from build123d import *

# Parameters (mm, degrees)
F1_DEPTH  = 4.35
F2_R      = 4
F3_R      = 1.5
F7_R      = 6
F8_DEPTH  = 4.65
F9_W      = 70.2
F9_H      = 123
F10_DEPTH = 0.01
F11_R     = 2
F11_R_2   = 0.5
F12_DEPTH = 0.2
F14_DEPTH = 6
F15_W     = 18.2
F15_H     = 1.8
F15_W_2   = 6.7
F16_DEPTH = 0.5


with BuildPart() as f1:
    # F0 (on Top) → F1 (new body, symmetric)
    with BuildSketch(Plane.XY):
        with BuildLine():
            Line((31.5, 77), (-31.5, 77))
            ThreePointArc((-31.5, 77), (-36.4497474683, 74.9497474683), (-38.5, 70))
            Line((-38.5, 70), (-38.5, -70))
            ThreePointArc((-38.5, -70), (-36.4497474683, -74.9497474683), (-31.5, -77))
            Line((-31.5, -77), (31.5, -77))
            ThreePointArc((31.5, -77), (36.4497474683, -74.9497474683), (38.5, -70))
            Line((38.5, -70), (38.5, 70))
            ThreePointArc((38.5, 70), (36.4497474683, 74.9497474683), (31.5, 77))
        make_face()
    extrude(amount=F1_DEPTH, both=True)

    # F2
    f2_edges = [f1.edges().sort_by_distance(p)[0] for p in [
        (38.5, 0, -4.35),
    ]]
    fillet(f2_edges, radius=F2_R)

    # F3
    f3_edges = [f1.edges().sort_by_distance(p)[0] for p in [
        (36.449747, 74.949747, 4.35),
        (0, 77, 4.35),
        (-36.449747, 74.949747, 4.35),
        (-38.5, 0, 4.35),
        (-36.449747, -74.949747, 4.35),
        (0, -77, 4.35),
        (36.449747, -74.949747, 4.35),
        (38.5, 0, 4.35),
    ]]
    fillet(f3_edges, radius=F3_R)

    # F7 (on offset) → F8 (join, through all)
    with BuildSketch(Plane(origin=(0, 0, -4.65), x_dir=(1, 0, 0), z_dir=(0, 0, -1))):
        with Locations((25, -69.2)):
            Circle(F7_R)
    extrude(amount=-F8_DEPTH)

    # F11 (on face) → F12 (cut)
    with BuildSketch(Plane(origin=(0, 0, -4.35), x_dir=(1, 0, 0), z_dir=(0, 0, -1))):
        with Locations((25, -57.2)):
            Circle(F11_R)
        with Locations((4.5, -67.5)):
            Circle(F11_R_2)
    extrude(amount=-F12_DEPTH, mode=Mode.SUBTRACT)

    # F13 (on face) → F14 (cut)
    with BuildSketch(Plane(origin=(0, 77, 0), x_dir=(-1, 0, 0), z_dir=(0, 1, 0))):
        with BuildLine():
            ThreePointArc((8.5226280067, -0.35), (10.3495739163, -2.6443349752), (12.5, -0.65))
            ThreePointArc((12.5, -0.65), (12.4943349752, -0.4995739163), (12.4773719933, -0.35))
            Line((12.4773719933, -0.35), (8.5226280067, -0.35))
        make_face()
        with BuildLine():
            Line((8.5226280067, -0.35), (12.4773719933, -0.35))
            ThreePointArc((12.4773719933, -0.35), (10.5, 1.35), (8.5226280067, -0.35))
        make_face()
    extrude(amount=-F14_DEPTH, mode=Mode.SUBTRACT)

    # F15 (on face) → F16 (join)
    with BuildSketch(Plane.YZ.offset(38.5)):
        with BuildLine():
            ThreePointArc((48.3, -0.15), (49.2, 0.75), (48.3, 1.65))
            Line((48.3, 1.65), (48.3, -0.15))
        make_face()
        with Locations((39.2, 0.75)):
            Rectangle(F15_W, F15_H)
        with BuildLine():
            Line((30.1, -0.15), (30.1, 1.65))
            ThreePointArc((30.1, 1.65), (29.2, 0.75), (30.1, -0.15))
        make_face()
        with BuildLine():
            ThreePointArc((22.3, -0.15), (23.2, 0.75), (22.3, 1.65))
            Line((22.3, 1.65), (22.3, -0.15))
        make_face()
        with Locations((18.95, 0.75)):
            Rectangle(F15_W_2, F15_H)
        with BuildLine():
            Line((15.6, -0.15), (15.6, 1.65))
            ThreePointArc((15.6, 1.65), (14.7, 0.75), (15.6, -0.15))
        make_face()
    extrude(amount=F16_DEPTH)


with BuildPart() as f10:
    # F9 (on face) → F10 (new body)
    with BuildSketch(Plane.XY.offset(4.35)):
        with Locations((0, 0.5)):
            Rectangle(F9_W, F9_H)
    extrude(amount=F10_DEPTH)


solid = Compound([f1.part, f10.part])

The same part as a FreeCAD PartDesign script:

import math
import FreeCAD as App
import Part
import Sketcher
Q = App.Units.Quantity


def edges_at(feature, points):
    """Names of the edges that pass closest to the given points."""
    edges = feature.Shape.Edges
    near = lambda p: min(range(len(edges)), key=lambda i: edges[i].distToShape(Part.Vertex(*p))[0])
    return sorted({f"Edge{near(p) + 1}" for p in points})


def add_polygon(sketch, points):
    """Adds a closed chain of lines whose ends are joined by coincident constraints."""
    first, n = sketch.GeometryCount, len(points)
    for a, b in zip(points, points[1:] + points[:1]):
        sketch.addGeometry(Part.LineSegment(App.Vector(*a, 0), App.Vector(*b, 0)), False)
    for i in range(n):
        sketch.addConstraint(Sketcher.Constraint("Coincident", first + i, 2, first + (i + 1) % n, 1))

doc = App.newDocument("Part")
body = doc.addObject("PartDesign::Body", "Body")

sketch1 = doc.addObject("Sketcher::SketchObject", "Sketch")
body.addObject(sketch1)
sketch1.AttachmentSupport = (doc.XY_Plane, [""])
sketch1.MapMode = "FlatFace"
sketch1.addGeometry(Part.LineSegment(App.Vector(32, 77, 0), App.Vector(-32, 77, 0)), False)
sketch1.addGeometry(Part.ArcOfCircle(Part.Circle(App.Vector(-32, 70, 0), App.Vector(0, 0, 1), 7), math.radians(90), math.radians(180)), False)
sketch1.addGeometry(Part.LineSegment(App.Vector(-38, 70, 0), App.Vector(-38, -70, 0)), False)
sketch1.addGeometry(Part.ArcOfCircle(Part.Circle(App.Vector(-32, -70, 0), App.Vector(0, 0, 1), 7), math.radians(180), math.radians(270)), False)
sketch1.addGeometry(Part.LineSegment(App.Vector(-32, -77, 0), App.Vector(32, -77, 0)), False)
sketch1.addGeometry(Part.ArcOfCircle(Part.Circle(App.Vector(32, -70, 0), App.Vector(0, 0, 1), 7), math.radians(-90), math.radians(0)), False)
sketch1.addGeometry(Part.LineSegment(App.Vector(38, -70, 0), App.Vector(38, 70, 0)), False)
sketch1.addGeometry(Part.ArcOfCircle(Part.Circle(App.Vector(32, 70, 0), App.Vector(0, 0, 1), 7), math.radians(0), math.radians(90)), False)
sketch1.addConstraint(Sketcher.Constraint("Tangent", 0, 2, 1, 1))
sketch1.addConstraint(Sketcher.Constraint("Tangent", 1, 2, 2, 1))
sketch1.addConstraint(Sketcher.Constraint("Tangent", 2, 2, 3, 1))
sketch1.addConstraint(Sketcher.Constraint("Tangent", 3, 2, 4, 1))
sketch1.addConstraint(Sketcher.Constraint("Tangent", 4, 2, 5, 1))
sketch1.addConstraint(Sketcher.Constraint("Tangent", 5, 2, 6, 1))
sketch1.addConstraint(Sketcher.Constraint("Tangent", 6, 2, 7, 1))
sketch1.addConstraint(Sketcher.Constraint("Tangent", 7, 2, 0, 1))
sketch1.addConstraint(Sketcher.Constraint("Horizontal", 0))
sketch1.addConstraint(Sketcher.Constraint("Vertical", 2))
sketch1.addConstraint(Sketcher.Constraint("Horizontal", 4))
sketch1.addConstraint(Sketcher.Constraint("Vertical", 6))
sketch1.addConstraint(Sketcher.Constraint("Equal", 1, 3))
sketch1.addConstraint(Sketcher.Constraint("Equal", 3, 5))
sketch1.addConstraint(Sketcher.Constraint("Equal", 5, 7))
sketch1.addConstraint(Sketcher.Constraint("Symmetric", 1, 3, 5, 3, -1, 1))
sketch1.addConstraint(Sketcher.Constraint("Radius", 1, Q("7 mm")))
sketch1.addConstraint(Sketcher.Constraint("DistanceX", 0, 2, 0, 1, Q("63 mm")))
sketch1.addConstraint(Sketcher.Constraint("DistanceY", 2, 2, 2, 1, Q("140 mm")))
pad1 = doc.addObject("PartDesign::Pad", "Pad")
body.addObject(pad1)
pad1.Profile = sketch1
pad1.Length = 8.7
pad1.Midplane = True
doc.recompute()

fillet = doc.addObject("PartDesign::Fillet", "Fillet")
body.addObject(fillet)
fillet.Base = (pad1, edges_at(pad1, [(38.5, 0, -4.35)]))
fillet.Radius = 4
doc.recompute()

fillet2 = doc.addObject("PartDesign::Fillet", "Fillet001")
body.addObject(fillet2)
fillet2.Base = (fillet, edges_at(fillet, [
    (36.45, 74.95, 4.35),
    (0, 77, 4.35),
    (-36.45, 74.95, 4.35),
    (-38.5, 0, 4.35),
    (-36.45, -74.95, 4.35),
    (0, -77, 4.35),
    (36.45, -74.95, 4.35),
    (38.5, 0, 4.35),
]))
fillet2.Radius = 1.5

sketch2 = doc.addObject("Sketcher::SketchObject", "Sketch001")
body.addObject(sketch2)
sketch2.AttachmentSupport = (doc.XY_Plane, [""])
sketch2.MapMode = "FlatFace"
sketch2.AttachmentOffset = App.Placement(App.Vector(0, 0, -4.65), App.Rotation())
sketch2.addGeometry(Part.Circle(App.Vector(25, 69, 0), App.Vector(0, 0, 1), 6), False)
sketch2.addConstraint(Sketcher.Constraint("Diameter", 0, Q("12 mm")))
sketch2.addConstraint(Sketcher.Constraint("DistanceX", -1, 1, 0, 3, Q("25 mm")))
sketch2.addConstraint(Sketcher.Constraint("DistanceY", -1, 1, 0, 3, Q("69.2 mm")))
pad2 = doc.addObject("PartDesign::Pad", "Pad001")
body.addObject(pad2)
pad2.Profile = sketch2
pad2.Type = "UpToLast"

sketch3 = doc.addObject("Sketcher::SketchObject", "Sketch002")
body.addObject(sketch3)
sketch3.AttachmentSupport = (doc.XY_Plane, [""])
sketch3.MapMode = "FlatFace"
sketch3.AttachmentOffset = App.Placement(App.Vector(0, 0, -4.35), App.Rotation())
sketch3.addGeometry(Part.Circle(App.Vector(25, 57.2, 0), App.Vector(0, 0, 1), 2), False)
sketch3.addGeometry(Part.Circle(App.Vector(4.5, 67.5, 0), App.Vector(0, 0, 1), 0.5), False)
sketch3.addConstraint(Sketcher.Constraint("Diameter", 0, Q("4 mm")))
sketch3.addConstraint(Sketcher.Constraint("Diameter", 1, Q("1 mm")))
sketch3.addConstraint(Sketcher.Constraint("DistanceX", -1, 1, 0, 3, Q("25 mm")))
sketch3.addConstraint(Sketcher.Constraint("DistanceY", -1, 1, 0, 3, Q("57.2 mm")))
sketch3.addConstraint(Sketcher.Constraint("DistanceX", -1, 1, 1, 3, Q("4.5 mm")))
sketch3.addConstraint(Sketcher.Constraint("DistanceY", -1, 1, 1, 3, Q("67.5 mm")))
pocket1 = doc.addObject("PartDesign::Pocket", "Pocket")
body.addObject(pocket1)
pocket1.Profile = sketch3
pocket1.Length = 0.2
pocket1.Reversed = True

sketch4 = doc.addObject("Sketcher::SketchObject", "Sketch003")
body.addObject(sketch4)
sketch4.AttachmentSupport = (doc.XZ_Plane, [""])
sketch4.MapMode = "FlatFace"
sketch4.AttachmentOffset = App.Placement(App.Vector(0, 0, -77), App.Rotation())
sketch4.addGeometry(Part.ArcOfCircle(Part.Circle(App.Vector(-10.5, -0.65, 0), App.Vector(0, 0, 1), 2), math.radians(180), math.radians(369)), False)
sketch4.addGeometry(Part.ArcOfCircle(Part.Circle(App.Vector(-10.5, -0.65, 0), App.Vector(0, 0, 1), 2), math.radians(171.37), math.radians(180)), False)
sketch4.addGeometry(Part.ArcOfCircle(Part.Circle(App.Vector(-10.5, -0.65, 0), App.Vector(0, 0, 1), 2), math.radians(9), math.radians(171)), False)
sketch4.addConstraint(Sketcher.Constraint("Tangent", 0, 1, 1, 2))
sketch4.addConstraint(Sketcher.Constraint("Tangent", 1, 1, 2, 2))
sketch4.addConstraint(Sketcher.Constraint("Tangent", 2, 1, 0, 2))
sketch4.addConstraint(Sketcher.Constraint("Horizontal", 2, 3, 0, 1))
sketch4.addConstraint(Sketcher.Constraint("Horizontal", 1, 1, 2, 1))
sketch4.addConstraint(Sketcher.Constraint("Radius", 0, Q("2 mm")))
sketch4.addConstraint(Sketcher.Constraint("DistanceX", 0, 3, -1, 1, Q("10.5 mm")))
sketch4.addConstraint(Sketcher.Constraint("DistanceY", 0, 1, 1, 1, Q("0.3 mm")))
sketch4.addConstraint(Sketcher.Constraint("DistanceY", 0, 3, -1, 1, Q("0.65 mm")))
pocket2 = doc.addObject("PartDesign::Pocket", "Pocket001")
body.addObject(pocket2)
pocket2.Profile = sketch4
pocket2.Length = 6
pocket2.Reversed = True

sketch5 = doc.addObject("Sketcher::SketchObject", "Sketch004")
body.addObject(sketch5)
sketch5.AttachmentSupport = (doc.YZ_Plane, [""])
sketch5.MapMode = "FlatFace"
sketch5.AttachmentOffset = App.Placement(App.Vector(0, 0, 38.5), App.Rotation())
sketch5.addGeometry(Part.ArcOfCircle(Part.Circle(App.Vector(48.3, 0.8, 0), App.Vector(0, 0, 1), 0.9), math.radians(-90), math.radians(90)), False)
sketch5.addGeometry(Part.LineSegment(App.Vector(48.3, 1.6, 0), App.Vector(30.1, 1.6, 0)), False)
sketch5.addGeometry(Part.ArcOfCircle(Part.Circle(App.Vector(30.1, 0.8, 0), App.Vector(0, 0, 1), 0.9), math.radians(90), math.radians(270)), False)
sketch5.addGeometry(Part.LineSegment(App.Vector(30.1, -0.1, 0), App.Vector(48.3, -0.1, 0)), False)
sketch5.addGeometry(Part.ArcOfCircle(Part.Circle(App.Vector(22.3, 0.8, 0), App.Vector(0, 0, 1), 0.9), math.radians(-90), math.radians(90)), False)
sketch5.addGeometry(Part.LineSegment(App.Vector(22.3, 1.6, 0), App.Vector(15.6, 1.6, 0)), False)
sketch5.addGeometry(Part.ArcOfCircle(Part.Circle(App.Vector(15.6, 0.8, 0), App.Vector(0, 0, 1), 0.9), math.radians(90), math.radians(270)), False)
sketch5.addGeometry(Part.LineSegment(App.Vector(15.6, -0.1, 0), App.Vector(22.3, -0.1, 0)), False)
sketch5.addConstraint(Sketcher.Constraint("Tangent", 0, 2, 1, 1))
sketch5.addConstraint(Sketcher.Constraint("Tangent", 1, 2, 2, 1))
sketch5.addConstraint(Sketcher.Constraint("Tangent", 2, 2, 3, 1))
sketch5.addConstraint(Sketcher.Constraint("Tangent", 3, 2, 0, 1))
sketch5.addConstraint(Sketcher.Constraint("Tangent", 4, 2, 5, 1))
sketch5.addConstraint(Sketcher.Constraint("Tangent", 5, 2, 6, 1))
sketch5.addConstraint(Sketcher.Constraint("Tangent", 6, 2, 7, 1))
sketch5.addConstraint(Sketcher.Constraint("Tangent", 7, 2, 4, 1))
sketch5.addConstraint(Sketcher.Constraint("Horizontal", 1))
sketch5.addConstraint(Sketcher.Constraint("Horizontal", 3))
sketch5.addConstraint(Sketcher.Constraint("Horizontal", 5))
sketch5.addConstraint(Sketcher.Constraint("Horizontal", 7))
sketch5.addConstraint(Sketcher.Constraint("Equal", 2, 4))
sketch5.addConstraint(Sketcher.Constraint("Horizontal", 2, 3, 4, 3))
sketch5.addConstraint(Sketcher.Constraint("Radius", 0, Q("0.9 mm")))
sketch5.addConstraint(Sketcher.Constraint("DistanceX", 1, 2, 1, 1, Q("18.2 mm")))
sketch5.addConstraint(Sketcher.Constraint("DistanceX", 5, 2, 5, 1, Q("6.7 mm")))
sketch5.addConstraint(Sketcher.Constraint("DistanceX", 4, 3, 0, 3, Q("26 mm")))
sketch5.addConstraint(Sketcher.Constraint("DistanceX", -1, 1, 0, 3, Q("48.3 mm")))
sketch5.addConstraint(Sketcher.Constraint("DistanceY", -1, 1, 0, 3, Q("0.75 mm")))
pad3 = doc.addObject("PartDesign::Pad", "Pad002")
body.addObject(pad3)
pad3.Profile = sketch5
pad3.Length = 0.5
body2 = doc.addObject("PartDesign::Body", "Body001")

sketch6 = doc.addObject("Sketcher::SketchObject", "Sketch005")
body2.addObject(sketch6)
sketch6.AttachmentSupport = (doc.getObject("XY_Plane001"), [""])
sketch6.MapMode = "FlatFace"
sketch6.AttachmentOffset = App.Placement(App.Vector(0, 0, 4.35), App.Rotation())
add_polygon(sketch6, [(-35, 62), (-35, -61), (35, -61), (35, 62)])
sketch6.addConstraint(Sketcher.Constraint("Vertical", 0))
sketch6.addConstraint(Sketcher.Constraint("Horizontal", 1))
sketch6.addConstraint(Sketcher.Constraint("Vertical", 2))
sketch6.addConstraint(Sketcher.Constraint("Horizontal", 3))
sketch6.addConstraint(Sketcher.Constraint("DistanceY", 0, 2, 0, 1, Q("123 mm")))
sketch6.addConstraint(Sketcher.Constraint("DistanceX", 1, 1, 1, 2, Q("70.2 mm")))
sketch6.addConstraint(Sketcher.Constraint("DistanceY", 0, 2, -1, 1, Q("61 mm")))
sketch6.addConstraint(Sketcher.Constraint("DistanceX", 0, 2, -1, 1, Q("35.1 mm")))
pad4 = doc.addObject("PartDesign::Pad", "Pad003")
body2.addObject(pad4)
pad4.Profile = sketch6
pad4.Length = 0.01

doc.recompute()
